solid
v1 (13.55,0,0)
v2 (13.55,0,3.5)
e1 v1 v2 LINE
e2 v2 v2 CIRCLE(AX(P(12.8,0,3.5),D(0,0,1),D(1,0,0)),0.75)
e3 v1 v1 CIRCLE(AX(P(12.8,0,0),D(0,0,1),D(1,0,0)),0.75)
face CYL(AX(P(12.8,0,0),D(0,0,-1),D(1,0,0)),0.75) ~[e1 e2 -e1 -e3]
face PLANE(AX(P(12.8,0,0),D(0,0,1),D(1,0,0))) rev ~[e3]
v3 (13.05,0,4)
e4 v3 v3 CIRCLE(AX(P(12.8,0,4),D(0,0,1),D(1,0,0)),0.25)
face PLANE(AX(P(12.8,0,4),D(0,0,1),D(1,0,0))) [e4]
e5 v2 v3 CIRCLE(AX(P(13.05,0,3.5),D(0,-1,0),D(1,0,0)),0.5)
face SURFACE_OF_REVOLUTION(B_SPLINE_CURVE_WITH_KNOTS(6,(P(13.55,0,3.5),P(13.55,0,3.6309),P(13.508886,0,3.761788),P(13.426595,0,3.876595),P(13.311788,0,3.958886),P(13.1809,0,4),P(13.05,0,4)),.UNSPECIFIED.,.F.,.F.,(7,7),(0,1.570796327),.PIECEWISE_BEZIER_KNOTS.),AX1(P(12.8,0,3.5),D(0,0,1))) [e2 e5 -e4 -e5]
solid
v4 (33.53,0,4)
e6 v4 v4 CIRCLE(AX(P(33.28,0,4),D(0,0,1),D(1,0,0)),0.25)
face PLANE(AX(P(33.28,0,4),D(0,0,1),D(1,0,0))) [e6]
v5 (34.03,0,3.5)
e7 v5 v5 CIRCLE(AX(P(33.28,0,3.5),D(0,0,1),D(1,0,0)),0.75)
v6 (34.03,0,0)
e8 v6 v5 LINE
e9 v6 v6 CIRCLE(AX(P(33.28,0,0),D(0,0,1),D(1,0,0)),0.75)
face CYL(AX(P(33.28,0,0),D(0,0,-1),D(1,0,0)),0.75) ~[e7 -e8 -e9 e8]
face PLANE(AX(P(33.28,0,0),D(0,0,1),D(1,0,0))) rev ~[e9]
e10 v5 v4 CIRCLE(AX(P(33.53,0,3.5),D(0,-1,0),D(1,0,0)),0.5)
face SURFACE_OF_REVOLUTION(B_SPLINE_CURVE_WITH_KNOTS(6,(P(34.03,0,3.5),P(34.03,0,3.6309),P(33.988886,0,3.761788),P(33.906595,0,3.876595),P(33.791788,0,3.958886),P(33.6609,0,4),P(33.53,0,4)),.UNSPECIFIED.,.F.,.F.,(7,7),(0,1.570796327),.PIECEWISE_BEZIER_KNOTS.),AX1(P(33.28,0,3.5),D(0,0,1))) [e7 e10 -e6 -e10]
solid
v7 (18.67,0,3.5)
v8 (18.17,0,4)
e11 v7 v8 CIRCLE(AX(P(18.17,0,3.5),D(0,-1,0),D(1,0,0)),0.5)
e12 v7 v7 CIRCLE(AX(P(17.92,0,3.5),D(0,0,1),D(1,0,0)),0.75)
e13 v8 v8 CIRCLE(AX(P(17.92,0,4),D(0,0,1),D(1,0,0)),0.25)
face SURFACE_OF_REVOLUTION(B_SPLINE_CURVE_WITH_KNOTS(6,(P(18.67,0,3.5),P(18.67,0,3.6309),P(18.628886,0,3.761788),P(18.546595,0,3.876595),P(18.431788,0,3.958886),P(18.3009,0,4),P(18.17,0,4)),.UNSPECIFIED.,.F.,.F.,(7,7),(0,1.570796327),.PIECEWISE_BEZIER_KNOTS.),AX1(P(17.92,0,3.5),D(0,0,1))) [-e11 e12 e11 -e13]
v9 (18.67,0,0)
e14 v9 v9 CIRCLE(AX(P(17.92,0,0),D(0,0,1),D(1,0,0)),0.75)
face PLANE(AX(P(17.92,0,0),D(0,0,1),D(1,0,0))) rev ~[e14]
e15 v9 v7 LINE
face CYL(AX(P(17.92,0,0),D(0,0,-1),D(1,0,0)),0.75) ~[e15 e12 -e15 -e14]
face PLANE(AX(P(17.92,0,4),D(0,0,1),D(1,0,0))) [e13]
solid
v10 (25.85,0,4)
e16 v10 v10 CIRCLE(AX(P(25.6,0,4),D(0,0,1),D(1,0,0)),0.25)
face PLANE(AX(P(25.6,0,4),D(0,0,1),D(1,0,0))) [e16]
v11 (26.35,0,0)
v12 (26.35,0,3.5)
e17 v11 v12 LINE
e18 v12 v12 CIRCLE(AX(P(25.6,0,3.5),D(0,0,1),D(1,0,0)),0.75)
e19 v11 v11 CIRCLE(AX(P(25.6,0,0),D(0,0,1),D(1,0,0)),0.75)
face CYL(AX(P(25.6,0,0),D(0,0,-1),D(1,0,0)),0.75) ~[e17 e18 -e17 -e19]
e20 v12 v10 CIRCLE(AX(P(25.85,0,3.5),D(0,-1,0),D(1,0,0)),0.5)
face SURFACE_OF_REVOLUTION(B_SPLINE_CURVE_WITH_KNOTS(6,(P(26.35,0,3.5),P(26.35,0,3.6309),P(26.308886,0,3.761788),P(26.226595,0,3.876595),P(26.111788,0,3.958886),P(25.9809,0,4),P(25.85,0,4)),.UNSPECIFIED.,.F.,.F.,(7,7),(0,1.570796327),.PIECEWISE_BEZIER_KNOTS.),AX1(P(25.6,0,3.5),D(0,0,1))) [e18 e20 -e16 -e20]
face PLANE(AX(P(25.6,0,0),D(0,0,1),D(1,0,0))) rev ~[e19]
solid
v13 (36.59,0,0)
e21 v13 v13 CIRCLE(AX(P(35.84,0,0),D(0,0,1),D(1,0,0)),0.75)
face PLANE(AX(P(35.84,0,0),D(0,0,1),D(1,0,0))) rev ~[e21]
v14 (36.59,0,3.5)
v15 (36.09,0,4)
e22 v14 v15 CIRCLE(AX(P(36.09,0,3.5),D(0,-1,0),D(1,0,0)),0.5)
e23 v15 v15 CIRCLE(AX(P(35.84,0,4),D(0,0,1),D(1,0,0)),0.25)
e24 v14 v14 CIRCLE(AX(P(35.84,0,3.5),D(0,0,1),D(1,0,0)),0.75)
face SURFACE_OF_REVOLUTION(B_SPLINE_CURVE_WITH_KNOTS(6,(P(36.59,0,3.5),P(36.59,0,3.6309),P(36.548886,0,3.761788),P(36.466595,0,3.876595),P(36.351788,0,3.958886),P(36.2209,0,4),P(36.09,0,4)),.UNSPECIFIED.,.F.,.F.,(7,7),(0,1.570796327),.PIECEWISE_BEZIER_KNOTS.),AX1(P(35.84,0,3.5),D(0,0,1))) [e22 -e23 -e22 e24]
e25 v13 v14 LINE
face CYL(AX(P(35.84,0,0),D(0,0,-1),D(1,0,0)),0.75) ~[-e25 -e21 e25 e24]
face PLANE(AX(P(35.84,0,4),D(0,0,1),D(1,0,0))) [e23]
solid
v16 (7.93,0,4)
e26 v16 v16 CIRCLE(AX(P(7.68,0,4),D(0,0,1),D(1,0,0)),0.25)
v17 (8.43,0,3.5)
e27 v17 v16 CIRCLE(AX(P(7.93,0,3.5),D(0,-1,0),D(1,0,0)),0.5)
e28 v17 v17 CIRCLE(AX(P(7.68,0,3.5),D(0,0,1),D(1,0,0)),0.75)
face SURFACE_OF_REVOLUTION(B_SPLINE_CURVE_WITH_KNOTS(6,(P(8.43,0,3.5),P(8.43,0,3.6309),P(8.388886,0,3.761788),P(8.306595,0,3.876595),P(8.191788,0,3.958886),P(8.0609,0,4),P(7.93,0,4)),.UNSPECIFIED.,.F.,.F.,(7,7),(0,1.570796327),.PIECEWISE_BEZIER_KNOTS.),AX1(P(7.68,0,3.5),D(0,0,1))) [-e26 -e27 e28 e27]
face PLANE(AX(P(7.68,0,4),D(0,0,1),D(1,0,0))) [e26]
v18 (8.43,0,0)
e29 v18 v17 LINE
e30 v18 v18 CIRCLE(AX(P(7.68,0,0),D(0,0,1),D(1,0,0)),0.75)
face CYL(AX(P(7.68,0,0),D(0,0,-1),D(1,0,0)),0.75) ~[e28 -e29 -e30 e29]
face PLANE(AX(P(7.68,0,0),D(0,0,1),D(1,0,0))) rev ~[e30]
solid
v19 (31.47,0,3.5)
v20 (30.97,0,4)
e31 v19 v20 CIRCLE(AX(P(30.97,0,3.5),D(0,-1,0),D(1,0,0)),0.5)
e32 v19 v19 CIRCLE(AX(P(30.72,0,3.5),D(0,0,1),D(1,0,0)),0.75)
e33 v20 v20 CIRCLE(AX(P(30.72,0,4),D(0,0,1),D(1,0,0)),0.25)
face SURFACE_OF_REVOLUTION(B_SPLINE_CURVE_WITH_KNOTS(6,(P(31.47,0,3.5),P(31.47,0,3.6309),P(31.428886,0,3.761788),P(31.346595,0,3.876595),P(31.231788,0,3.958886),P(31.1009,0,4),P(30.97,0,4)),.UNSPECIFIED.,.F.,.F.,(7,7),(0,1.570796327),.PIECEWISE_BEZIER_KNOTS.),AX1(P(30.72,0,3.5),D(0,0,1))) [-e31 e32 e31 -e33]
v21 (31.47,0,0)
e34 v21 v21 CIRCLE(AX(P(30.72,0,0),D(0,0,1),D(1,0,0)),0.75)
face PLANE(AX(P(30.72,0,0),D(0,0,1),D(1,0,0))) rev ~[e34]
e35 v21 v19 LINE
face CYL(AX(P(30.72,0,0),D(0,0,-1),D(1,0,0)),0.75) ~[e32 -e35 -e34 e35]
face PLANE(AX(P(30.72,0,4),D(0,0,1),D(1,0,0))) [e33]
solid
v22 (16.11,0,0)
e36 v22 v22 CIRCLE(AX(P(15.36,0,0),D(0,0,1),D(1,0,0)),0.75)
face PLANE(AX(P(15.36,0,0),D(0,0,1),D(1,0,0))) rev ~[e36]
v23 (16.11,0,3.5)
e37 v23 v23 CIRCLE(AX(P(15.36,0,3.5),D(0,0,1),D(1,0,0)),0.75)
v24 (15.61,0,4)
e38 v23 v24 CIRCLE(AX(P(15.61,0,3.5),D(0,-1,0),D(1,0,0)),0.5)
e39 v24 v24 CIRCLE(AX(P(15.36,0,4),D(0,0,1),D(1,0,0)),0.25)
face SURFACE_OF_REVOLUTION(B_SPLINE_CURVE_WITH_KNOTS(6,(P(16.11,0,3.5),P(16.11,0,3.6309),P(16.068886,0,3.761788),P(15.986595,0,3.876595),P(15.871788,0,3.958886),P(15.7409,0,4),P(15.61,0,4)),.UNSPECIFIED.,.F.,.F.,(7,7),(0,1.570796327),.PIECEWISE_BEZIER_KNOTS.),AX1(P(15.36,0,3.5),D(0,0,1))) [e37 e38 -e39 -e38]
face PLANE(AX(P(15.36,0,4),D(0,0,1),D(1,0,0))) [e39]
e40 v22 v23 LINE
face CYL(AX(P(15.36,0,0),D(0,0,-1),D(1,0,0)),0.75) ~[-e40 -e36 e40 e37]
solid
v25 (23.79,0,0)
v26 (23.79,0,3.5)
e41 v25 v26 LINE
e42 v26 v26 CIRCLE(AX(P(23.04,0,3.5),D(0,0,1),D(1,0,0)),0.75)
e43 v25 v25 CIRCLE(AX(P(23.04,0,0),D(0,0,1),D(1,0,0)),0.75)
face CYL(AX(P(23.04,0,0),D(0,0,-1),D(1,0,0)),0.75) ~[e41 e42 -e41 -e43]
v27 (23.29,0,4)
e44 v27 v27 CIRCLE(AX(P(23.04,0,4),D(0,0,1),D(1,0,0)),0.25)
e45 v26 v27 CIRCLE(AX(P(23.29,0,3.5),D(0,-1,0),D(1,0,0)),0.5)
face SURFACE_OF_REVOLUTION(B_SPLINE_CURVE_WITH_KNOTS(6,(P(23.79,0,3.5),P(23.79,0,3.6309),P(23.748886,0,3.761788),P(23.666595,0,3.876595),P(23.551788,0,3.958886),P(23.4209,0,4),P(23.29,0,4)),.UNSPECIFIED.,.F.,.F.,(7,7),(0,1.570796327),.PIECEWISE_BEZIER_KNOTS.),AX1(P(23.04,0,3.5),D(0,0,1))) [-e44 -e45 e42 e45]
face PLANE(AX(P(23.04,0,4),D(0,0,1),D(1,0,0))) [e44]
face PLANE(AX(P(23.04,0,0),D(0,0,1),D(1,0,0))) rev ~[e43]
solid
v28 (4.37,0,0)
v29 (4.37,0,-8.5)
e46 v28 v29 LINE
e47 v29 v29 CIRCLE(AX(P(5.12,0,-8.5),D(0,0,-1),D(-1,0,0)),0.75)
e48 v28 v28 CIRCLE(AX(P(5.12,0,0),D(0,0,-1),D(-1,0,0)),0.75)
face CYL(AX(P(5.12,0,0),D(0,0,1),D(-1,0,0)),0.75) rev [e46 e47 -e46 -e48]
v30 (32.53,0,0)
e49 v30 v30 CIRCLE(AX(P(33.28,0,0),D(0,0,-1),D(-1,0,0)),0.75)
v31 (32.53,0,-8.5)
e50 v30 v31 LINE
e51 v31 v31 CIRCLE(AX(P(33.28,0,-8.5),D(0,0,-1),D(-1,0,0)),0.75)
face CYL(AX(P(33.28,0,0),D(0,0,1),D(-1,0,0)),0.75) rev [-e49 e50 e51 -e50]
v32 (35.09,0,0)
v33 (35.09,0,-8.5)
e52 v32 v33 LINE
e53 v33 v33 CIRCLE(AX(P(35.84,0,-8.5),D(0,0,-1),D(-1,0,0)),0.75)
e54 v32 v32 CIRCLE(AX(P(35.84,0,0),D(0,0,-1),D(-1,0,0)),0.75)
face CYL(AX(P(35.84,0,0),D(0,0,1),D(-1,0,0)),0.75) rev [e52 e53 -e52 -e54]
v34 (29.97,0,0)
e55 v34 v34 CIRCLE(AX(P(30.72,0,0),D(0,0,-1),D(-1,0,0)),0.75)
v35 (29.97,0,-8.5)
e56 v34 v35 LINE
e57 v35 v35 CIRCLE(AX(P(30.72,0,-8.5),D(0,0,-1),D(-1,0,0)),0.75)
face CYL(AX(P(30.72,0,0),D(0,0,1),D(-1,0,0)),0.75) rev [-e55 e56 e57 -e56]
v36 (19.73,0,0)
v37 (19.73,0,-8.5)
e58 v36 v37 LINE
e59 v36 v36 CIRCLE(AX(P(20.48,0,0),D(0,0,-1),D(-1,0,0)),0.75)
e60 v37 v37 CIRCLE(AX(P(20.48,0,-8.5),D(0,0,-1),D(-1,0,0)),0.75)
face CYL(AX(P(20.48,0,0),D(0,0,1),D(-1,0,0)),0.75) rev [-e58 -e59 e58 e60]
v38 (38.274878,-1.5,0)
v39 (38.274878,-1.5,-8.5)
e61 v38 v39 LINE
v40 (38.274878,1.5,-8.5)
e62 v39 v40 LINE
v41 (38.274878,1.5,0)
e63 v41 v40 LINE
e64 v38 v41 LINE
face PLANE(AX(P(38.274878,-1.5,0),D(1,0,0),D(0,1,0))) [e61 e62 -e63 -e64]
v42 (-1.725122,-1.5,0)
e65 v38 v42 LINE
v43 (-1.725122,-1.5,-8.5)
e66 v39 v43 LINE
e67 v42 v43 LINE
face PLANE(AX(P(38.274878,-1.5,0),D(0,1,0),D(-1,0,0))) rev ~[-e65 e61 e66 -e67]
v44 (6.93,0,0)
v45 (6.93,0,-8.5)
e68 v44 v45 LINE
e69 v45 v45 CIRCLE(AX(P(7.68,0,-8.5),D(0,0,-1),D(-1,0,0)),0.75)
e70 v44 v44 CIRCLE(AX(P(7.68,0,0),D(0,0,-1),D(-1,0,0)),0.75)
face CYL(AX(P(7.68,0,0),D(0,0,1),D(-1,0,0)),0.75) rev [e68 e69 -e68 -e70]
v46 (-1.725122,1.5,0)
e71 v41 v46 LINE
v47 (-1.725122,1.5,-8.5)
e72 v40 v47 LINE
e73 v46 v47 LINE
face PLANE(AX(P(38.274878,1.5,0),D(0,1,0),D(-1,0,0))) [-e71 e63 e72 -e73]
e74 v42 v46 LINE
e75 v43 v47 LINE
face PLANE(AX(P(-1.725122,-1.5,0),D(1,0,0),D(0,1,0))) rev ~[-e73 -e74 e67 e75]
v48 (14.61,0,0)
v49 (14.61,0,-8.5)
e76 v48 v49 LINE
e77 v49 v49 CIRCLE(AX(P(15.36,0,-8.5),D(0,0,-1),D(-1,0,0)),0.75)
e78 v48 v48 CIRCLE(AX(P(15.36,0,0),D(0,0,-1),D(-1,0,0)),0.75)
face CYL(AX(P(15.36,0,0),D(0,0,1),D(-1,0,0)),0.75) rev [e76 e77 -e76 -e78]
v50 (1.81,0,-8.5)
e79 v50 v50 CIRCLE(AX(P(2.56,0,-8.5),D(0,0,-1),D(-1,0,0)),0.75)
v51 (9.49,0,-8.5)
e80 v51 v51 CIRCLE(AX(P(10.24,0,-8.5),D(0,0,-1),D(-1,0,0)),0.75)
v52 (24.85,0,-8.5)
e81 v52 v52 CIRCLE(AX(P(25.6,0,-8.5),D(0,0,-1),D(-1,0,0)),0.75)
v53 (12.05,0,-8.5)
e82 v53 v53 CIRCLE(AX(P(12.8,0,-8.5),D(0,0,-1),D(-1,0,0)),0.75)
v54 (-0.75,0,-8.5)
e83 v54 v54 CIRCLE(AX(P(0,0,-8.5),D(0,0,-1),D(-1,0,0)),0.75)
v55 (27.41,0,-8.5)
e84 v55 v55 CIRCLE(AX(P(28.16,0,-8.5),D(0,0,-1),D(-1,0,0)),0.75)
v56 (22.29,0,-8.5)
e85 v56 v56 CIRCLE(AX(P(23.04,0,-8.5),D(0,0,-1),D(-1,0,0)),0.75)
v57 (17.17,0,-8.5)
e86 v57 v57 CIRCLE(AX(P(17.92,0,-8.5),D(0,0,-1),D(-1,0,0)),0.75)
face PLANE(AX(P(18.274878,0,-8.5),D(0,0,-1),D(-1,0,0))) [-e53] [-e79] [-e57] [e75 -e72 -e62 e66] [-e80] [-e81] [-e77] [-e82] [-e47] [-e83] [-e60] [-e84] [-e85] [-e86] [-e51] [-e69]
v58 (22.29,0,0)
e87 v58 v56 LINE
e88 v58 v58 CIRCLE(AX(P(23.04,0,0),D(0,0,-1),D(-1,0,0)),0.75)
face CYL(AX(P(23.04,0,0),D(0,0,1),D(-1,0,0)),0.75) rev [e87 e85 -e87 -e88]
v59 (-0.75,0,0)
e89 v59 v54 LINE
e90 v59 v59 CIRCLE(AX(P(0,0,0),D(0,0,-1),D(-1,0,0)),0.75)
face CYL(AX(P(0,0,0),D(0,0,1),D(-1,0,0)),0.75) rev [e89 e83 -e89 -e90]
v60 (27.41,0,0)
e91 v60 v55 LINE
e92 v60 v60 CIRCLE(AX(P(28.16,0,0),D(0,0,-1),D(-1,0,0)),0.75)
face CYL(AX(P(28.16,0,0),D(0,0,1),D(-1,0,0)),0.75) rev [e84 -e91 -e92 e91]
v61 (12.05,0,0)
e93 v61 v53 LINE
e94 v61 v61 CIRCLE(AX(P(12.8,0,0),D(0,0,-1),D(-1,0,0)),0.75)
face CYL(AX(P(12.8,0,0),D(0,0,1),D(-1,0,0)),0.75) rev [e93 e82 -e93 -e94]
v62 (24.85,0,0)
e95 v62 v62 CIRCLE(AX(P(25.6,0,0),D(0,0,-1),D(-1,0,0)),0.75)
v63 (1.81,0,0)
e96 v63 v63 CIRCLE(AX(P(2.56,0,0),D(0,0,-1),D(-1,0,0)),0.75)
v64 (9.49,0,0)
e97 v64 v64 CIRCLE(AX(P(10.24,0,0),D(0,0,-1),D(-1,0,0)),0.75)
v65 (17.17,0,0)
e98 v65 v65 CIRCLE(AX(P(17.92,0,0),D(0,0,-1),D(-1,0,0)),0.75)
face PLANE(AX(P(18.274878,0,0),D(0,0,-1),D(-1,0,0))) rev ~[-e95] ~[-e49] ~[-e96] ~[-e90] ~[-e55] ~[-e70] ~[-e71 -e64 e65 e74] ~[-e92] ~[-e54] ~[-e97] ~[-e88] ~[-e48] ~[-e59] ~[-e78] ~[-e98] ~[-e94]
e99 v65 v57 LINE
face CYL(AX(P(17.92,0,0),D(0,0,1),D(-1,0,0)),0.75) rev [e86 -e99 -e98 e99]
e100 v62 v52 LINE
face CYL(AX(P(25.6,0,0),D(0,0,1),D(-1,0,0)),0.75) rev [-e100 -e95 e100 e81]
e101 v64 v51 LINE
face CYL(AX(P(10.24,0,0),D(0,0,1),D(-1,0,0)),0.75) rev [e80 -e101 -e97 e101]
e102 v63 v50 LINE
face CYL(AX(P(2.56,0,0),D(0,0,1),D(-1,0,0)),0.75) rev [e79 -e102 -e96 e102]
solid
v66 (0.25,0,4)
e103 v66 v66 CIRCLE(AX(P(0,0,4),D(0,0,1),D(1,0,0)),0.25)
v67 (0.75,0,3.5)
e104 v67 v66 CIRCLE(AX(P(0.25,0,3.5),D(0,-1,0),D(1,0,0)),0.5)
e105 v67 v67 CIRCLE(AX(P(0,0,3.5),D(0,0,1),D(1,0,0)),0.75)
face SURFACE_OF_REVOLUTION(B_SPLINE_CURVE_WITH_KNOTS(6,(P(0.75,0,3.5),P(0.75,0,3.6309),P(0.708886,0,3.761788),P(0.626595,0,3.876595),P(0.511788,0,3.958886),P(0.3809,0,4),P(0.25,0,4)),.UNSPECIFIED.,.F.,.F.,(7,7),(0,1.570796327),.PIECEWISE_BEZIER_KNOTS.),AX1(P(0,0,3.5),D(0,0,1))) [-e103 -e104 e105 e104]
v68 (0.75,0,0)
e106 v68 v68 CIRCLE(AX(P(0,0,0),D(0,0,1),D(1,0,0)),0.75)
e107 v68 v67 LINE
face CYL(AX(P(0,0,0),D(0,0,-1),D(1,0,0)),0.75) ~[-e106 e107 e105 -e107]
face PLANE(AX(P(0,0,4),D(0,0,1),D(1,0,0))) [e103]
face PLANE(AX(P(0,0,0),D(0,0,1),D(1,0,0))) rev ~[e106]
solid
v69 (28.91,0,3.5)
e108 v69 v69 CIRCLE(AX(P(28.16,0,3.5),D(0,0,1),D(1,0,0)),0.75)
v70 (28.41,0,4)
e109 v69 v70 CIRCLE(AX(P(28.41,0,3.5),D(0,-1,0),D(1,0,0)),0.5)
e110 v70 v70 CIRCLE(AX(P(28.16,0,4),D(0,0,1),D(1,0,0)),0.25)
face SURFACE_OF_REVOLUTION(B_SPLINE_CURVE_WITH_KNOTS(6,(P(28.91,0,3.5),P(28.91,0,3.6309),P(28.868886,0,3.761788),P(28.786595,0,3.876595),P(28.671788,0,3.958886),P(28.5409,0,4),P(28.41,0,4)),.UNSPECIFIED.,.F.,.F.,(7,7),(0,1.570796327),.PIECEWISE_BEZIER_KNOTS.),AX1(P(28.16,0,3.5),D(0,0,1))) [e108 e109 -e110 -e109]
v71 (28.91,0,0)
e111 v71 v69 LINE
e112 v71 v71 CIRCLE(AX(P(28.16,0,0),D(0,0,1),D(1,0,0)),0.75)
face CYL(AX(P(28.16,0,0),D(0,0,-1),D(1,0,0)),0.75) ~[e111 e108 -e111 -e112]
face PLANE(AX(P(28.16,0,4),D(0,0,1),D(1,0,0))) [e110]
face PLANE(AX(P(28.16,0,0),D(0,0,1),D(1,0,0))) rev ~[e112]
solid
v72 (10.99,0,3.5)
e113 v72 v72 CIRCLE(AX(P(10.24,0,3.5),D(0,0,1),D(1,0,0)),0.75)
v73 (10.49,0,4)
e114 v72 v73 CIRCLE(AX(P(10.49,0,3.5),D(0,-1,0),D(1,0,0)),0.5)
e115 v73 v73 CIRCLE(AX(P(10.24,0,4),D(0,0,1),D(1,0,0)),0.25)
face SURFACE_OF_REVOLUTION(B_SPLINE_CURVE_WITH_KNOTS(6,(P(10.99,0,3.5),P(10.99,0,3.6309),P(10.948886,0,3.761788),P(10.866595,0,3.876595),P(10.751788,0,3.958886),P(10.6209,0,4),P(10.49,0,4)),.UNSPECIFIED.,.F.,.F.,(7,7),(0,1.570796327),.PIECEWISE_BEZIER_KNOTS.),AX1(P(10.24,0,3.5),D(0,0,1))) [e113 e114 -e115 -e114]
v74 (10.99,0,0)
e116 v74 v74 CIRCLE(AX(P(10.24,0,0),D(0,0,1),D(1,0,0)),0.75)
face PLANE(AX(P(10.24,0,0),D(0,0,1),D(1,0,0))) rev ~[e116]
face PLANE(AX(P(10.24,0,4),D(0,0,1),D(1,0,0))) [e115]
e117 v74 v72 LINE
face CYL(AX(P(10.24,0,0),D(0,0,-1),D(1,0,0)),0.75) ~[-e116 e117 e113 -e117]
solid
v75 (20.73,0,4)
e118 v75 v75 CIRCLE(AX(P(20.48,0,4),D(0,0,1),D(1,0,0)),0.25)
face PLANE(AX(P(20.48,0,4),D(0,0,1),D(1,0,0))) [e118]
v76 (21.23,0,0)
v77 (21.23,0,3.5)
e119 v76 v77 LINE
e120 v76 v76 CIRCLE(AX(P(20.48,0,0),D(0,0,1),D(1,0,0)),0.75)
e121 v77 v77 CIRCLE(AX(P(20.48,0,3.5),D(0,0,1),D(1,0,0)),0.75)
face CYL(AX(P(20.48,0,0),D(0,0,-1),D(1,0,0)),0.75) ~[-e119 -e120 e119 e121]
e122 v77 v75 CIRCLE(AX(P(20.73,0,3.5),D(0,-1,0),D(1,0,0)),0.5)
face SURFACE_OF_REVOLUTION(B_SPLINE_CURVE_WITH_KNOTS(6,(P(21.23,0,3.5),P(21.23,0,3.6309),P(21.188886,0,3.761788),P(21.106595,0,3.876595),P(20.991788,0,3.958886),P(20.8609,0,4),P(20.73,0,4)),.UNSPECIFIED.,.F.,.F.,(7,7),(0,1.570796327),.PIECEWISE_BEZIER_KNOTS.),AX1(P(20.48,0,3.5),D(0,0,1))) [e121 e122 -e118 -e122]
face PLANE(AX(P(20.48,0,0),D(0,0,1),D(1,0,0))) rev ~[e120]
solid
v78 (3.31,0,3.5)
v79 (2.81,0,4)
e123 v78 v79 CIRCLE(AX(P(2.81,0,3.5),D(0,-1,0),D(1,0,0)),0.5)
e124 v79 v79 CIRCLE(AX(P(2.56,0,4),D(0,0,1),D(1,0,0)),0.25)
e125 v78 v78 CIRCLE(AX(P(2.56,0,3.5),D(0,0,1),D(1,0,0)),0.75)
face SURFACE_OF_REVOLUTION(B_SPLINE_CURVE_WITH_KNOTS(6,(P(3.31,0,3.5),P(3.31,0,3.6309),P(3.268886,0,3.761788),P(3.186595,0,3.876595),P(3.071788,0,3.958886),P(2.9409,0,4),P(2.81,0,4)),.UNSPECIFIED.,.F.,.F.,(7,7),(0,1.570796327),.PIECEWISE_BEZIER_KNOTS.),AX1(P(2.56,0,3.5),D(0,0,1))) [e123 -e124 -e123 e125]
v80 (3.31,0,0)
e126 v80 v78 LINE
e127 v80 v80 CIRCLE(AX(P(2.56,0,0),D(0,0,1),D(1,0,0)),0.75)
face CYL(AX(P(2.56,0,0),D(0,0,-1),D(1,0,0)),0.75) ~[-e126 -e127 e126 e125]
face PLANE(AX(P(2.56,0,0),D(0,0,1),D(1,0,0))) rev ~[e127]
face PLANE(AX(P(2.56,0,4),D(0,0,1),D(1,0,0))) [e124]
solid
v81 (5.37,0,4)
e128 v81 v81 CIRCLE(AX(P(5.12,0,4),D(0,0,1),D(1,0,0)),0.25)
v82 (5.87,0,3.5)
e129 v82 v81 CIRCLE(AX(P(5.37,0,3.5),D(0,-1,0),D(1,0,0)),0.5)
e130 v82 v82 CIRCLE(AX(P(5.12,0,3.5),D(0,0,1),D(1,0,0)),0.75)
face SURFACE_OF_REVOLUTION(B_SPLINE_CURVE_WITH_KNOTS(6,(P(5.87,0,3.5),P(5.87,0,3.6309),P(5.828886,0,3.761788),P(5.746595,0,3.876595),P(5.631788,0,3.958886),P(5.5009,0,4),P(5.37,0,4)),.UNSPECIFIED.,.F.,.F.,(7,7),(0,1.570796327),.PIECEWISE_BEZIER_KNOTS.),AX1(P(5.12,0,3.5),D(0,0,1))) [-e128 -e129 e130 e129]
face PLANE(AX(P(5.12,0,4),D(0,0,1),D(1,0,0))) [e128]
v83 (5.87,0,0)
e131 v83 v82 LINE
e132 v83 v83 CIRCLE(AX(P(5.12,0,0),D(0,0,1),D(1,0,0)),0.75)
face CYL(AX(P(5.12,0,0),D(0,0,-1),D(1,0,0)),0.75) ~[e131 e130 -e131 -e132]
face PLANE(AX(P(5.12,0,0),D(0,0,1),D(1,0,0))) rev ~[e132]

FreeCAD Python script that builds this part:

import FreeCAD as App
import Part
import Sketcher

V = App.Vector
Q = App.Units.Quantity


def edges_at(feature, points):
    """Names of the edges that pass closest to the given points."""
    edges = feature.Shape.Edges
    near = lambda p: min(range(len(edges)), key=lambda i: edges[i].distToShape(Part.Vertex(*p))[0])
    return sorted({f"Edge{near(p) + 1}" for p in points})

doc = App.newDocument("Part")
params = doc.addObject("Spreadsheet::Sheet", "Params")
for row, (alias, value) in enumerate([
    ("sketch1_diameter", "1.5 mm"),
    ("pad1_length", "4 mm"),
    ("fillet_radius", "0.5 mm"),
    ("sketch2_diameter", "1.5 mm"),
    ("pad2_length", "4 mm"),
    ("fillet2_radius", "0.5 mm"),
    ("sketch3_diameter", "1.5 mm"),
    ("pad3_length", "4 mm"),
    ("fillet3_radius", "0.5 mm"),
    ("sketch4_diameter", "1.5 mm"),
    ("pad4_length", "4 mm"),
    ("fillet4_radius", "0.5 mm"),
    ("sketch5_diameter", "1.5 mm"),
    ("pad5_length", "4 mm"),
    ("fillet5_radius", "0.5 mm"),
    ("sketch6_diameter", "1.5 mm"),
    ("pad6_length", "4 mm"),
    ("fillet6_radius", "0.5 mm"),
    ("sketch7_diameter", "1.5 mm"),
    ("pad7_length", "4 mm"),
    ("fillet7_radius", "0.5 mm"),
    ("sketch8_diameter", "1.5 mm"),
    ("pad8_length", "4 mm"),
    ("fillet8_radius", "0.5 mm"),
    ("sketch9_diameter", "1.5 mm"),
    ("pad9_length", "4 mm"),
    ("fillet9_radius", "0.5 mm"),
    ("sketch10_diameter", "1.5 mm"),
    ("pad10_length", "4 mm"),
    ("fillet10_radius", "0.5 mm"),
    ("sketch11_diameter", "1.5 mm"),
    ("pad11_length", "4 mm"),
    ("fillet11_radius", "0.5 mm"),
    ("sketch12_diameter", "1.5 mm"),
    ("pad12_length", "4 mm"),
    ("fillet12_radius", "0.5 mm"),
    ("sketch13_diameter", "1.5 mm"),
    ("pad13_length", "4 mm"),
    ("fillet13_radius", "0.5 mm"),
    ("sketch14_diameter", "1.5 mm"),
    ("pad14_length", "4 mm"),
    ("fillet14_radius", "0.5 mm"),
    ("sketch15_diameter", "1.5 mm"),
    ("pad15_length", "4 mm"),
    ("fillet15_radius", "0.5 mm"),
    ("sketch16_diameter", "1.5 mm"),
    ("sketch16_width", "40 mm"),
    ("sketch16_height", "3 mm"),
    ("pad16_length", "8.5 mm"),
], start=1):
    params.set(f"A{row}", alias)
    params.set(f"B{row}", "=" + value)
    params.setAlias(f"B{row}", alias)

body = doc.addObject("PartDesign::Body", "Body")

# Sketch on XY plane
sketch1 = doc.addObject("Sketcher::SketchObject", "Sketch")
body.addObject(sketch1)
sketch1.AttachmentSupport = (doc.XY_Plane, [""])
sketch1.MapMode = "FlatFace"
sketch1.addGeometry(Part.Circle(V(0, 0, 0), V(0, 0, 1), 0.8), False)
sketch1.addConstraint([
    Sketcher.Constraint("Coincident", 0, 3, -1, 1),
    Sketcher.Constraint("Diameter", 0, Q("1.5 mm")),
])
sketch1.setExpression("Constraints[1]", "Params.sketch1_diameter")
pad1 = doc.addObject("PartDesign::Pad", "Pad")
body.addObject(pad1)
pad1.Profile = sketch1
pad1.setExpression("Length", "Params.pad1_length")
doc.recompute()

fillet = doc.addObject("PartDesign::Fillet", "Fillet")
body.addObject(fillet)
fillet.Base = (pad1, edges_at(pad1, [(-0.75, 0, 4)]))
fillet.setExpression("Radius", "Params.fillet_radius")
body2 = doc.addObject("PartDesign::Body", "Body001")

# Sketch on XY plane
sketch2 = doc.addObject("Sketcher::SketchObject", "Sketch001")
body2.addObject(sketch2)
sketch2.AttachmentSupport = (doc.getObject("XY_Plane001"), [""])
sketch2.MapMode = "FlatFace"
sketch2.addGeometry(Part.Circle(V(2.6, 0, 0), V(0, 0, 1), 0.8), False)
sketch2.addConstraint([
    Sketcher.Constraint("PointOnObject", 0, 3, -1),
    Sketcher.Constraint("Diameter", 0, Q("1.5 mm")),
    Sketcher.Constraint("DistanceX", -1, 1, 0, 3, Q("2.56 mm")),
])
sketch2.setExpression("Constraints[1]", "Params.sketch2_diameter")
pad2 = doc.addObject("PartDesign::Pad", "Pad001")
body2.addObject(pad2)
pad2.Profile = sketch2
pad2.setExpression("Length", "Params.pad2_length")
doc.recompute()

fillet2 = doc.addObject("PartDesign::Fillet", "Fillet001")
body2.addObject(fillet2)
fillet2.Base = (pad2, edges_at(pad2, [(1.81, 0, 4)]))
fillet2.setExpression("Radius", "Params.fillet2_radius")
body3 = doc.addObject("PartDesign::Body", "Body002")

# Sketch on XY plane
sketch3 = doc.addObject("Sketcher::SketchObject", "Sketch002")
body3.addObject(sketch3)
sketch3.AttachmentSupport = (doc.getObject("XY_Plane002"), [""])
sketch3.MapMode = "FlatFace"
sketch3.addGeometry(Part.Circle(V(5.1, 0, 0), V(0, 0, 1), 0.8), False)
sketch3.addConstraint([
    Sketcher.Constraint("PointOnObject", 0, 3, -1),
    Sketcher.Constraint("Diameter", 0, Q("1.5 mm")),
    Sketcher.Constraint("DistanceX", -1, 1, 0, 3, Q("5.12 mm")),
])
sketch3.setExpression("Constraints[1]", "Params.sketch3_diameter")
pad3 = doc.addObject("PartDesign::Pad", "Pad002")
body3.addObject(pad3)
pad3.Profile = sketch3
pad3.setExpression("Length", "Params.pad3_length")
doc.recompute()

fillet3 = doc.addObject("PartDesign::Fillet", "Fillet002")
body3.addObject(fillet3)
fillet3.Base = (pad3, edges_at(pad3, [(4.37, 0, 4)]))
fillet3.setExpression("Radius", "Params.fillet3_radius")
body4 = doc.addObject("PartDesign::Body", "Body003")

# Sketch on XY plane
sketch4 = doc.addObject("Sketcher::SketchObject", "Sketch003")
body4.addObject(sketch4)
sketch4.AttachmentSupport = (doc.getObject("XY_Plane003"), [""])
sketch4.MapMode = "FlatFace"
sketch4.addGeometry(Part.Circle(V(7.7, 0, 0), V(0, 0, 1), 0.8), False)
sketch4.addConstraint([
    Sketcher.Constraint("PointOnObject", 0, 3, -1),
    Sketcher.Constraint("Diameter", 0, Q("1.5 mm")),
    Sketcher.Constraint("DistanceX", -1, 1, 0, 3, Q("7.68 mm")),
])
sketch4.setExpression("Constraints[1]", "Params.sketch4_diameter")
pad4 = doc.addObject("PartDesign::Pad", "Pad003")
body4.addObject(pad4)
pad4.Profile = sketch4
pad4.setExpression("Length", "Params.pad4_length")
doc.recompute()

fillet4 = doc.addObject("PartDesign::Fillet", "Fillet003")
body4.addObject(fillet4)
fillet4.Base = (pad4, edges_at(pad4, [(6.93, 0, 4)]))
fillet4.setExpression("Radius", "Params.fillet4_radius")
body5 = doc.addObject("PartDesign::Body", "Body004")

# Sketch on XY plane
sketch5 = doc.addObject("Sketcher::SketchObject", "Sketch004")
body5.addObject(sketch5)
sketch5.AttachmentSupport = (doc.getObject("XY_Plane004"), [""])
sketch5.MapMode = "FlatFace"
sketch5.addGeometry(Part.Circle(V(10.2, 0, 0), V(0, 0, 1), 0.8), False)
sketch5.addConstraint([
    Sketcher.Constraint("PointOnObject", 0, 3, -1),
    Sketcher.Constraint("Diameter", 0, Q("1.5 mm")),
    Sketcher.Constraint("DistanceX", -1, 1, 0, 3, Q("10.24 mm")),
])
sketch5.setExpression("Constraints[1]", "Params.sketch5_diameter")
pad5 = doc.addObject("PartDesign::Pad", "Pad004")
body5.addObject(pad5)
pad5.Profile = sketch5
pad5.setExpression("Length", "Params.pad5_length")
doc.recompute()

fillet5 = doc.addObject("PartDesign::Fillet", "Fillet004")
body5.addObject(fillet5)
fillet5.Base = (pad5, edges_at(pad5, [(9.49, 0, 4)]))
fillet5.setExpression("Radius", "Params.fillet5_radius")
body6 = doc.addObject("PartDesign::Body", "Body005")

# Sketch on XY plane
sketch6 = doc.addObject("Sketcher::SketchObject", "Sketch005")
body6.addObject(sketch6)
sketch6.AttachmentSupport = (doc.getObject("XY_Plane005"), [""])
sketch6.MapMode = "FlatFace"
sketch6.addGeometry(Part.Circle(V(12.8, 0, 0), V(0, 0, 1), 0.8), False)
sketch6.addConstraint([
    Sketcher.Constraint("PointOnObject", 0, 3, -1),
    Sketcher.Constraint("Diameter", 0, Q("1.5 mm")),
    Sketcher.Constraint("DistanceX", -1, 1, 0, 3, Q("12.8 mm")),
])
sketch6.setExpression("Constraints[1]", "Params.sketch6_diameter")
pad6 = doc.addObject("PartDesign::Pad", "Pad005")
body6.addObject(pad6)
pad6.Profile = sketch6
pad6.setExpression("Length", "Params.pad6_length")
doc.recompute()

fillet6 = doc.addObject("PartDesign::Fillet", "Fillet005")
body6.addObject(fillet6)
fillet6.Base = (pad6, edges_at(pad6, [(12.05, 0, 4)]))
fillet6.setExpression("Radius", "Params.fillet6_radius")
body7 = doc.addObject("PartDesign::Body", "Body006")

# Sketch on XY plane
sketch7 = doc.addObject("Sketcher::SketchObject", "Sketch006")
body7.addObject(sketch7)
sketch7.AttachmentSupport = (doc.getObject("XY_Plane006"), [""])
sketch7.MapMode = "FlatFace"
sketch7.addGeometry(Part.Circle(V(15.4, 0, 0), V(0, 0, 1), 0.8), False)
sketch7.addConstraint([
    Sketcher.Constraint("PointOnObject", 0, 3, -1),
    Sketcher.Constraint("Diameter", 0, Q("1.5 mm")),
    Sketcher.Constraint("DistanceX", -1, 1, 0, 3, Q("15.36 mm")),
])
sketch7.setExpression("Constraints[1]", "Params.sketch7_diameter")
pad7 = doc.addObject("PartDesign::Pad", "Pad006")
body7.addObject(pad7)
pad7.Profile = sketch7
pad7.setExpression("Length", "Params.pad7_length")
doc.recompute()

fillet7 = doc.addObject("PartDesign::Fillet", "Fillet006")
body7.addObject(fillet7)
fillet7.Base = (pad7, edges_at(pad7, [(14.61, 0, 4)]))
fillet7.setExpression("Radius", "Params.fillet7_radius")
body8 = doc.addObject("PartDesign::Body", "Body007")

# Sketch on XY plane
sketch8 = doc.addObject("Sketcher::SketchObject", "Sketch007")
body8.addObject(sketch8)
sketch8.AttachmentSupport = (doc.getObject("XY_Plane007"), [""])
sketch8.MapMode = "FlatFace"
sketch8.addGeometry(Part.Circle(V(17.9, 0, 0), V(0, 0, 1), 0.8), False)
sketch8.addConstraint([
    Sketcher.Constraint("PointOnObject", 0, 3, -1),
    Sketcher.Constraint("Diameter", 0, Q("1.5 mm")),
    Sketcher.Constraint("DistanceX", -1, 1, 0, 3, Q("17.92 mm")),
])
sketch8.setExpression("Constraints[1]", "Params.sketch8_diameter")
pad8 = doc.addObject("PartDesign::Pad", "Pad007")
body8.addObject(pad8)
pad8.Profile = sketch8
pad8.setExpression("Length", "Params.pad8_length")
doc.recompute()

fillet8 = doc.addObject("PartDesign::Fillet", "Fillet007")
body8.addObject(fillet8)
fillet8.Base = (pad8, edges_at(pad8, [(17.17, 0, 4)]))
fillet8.setExpression("Radius", "Params.fillet8_radius")
body9 = doc.addObject("PartDesign::Body", "Body008")

# Sketch on XY plane
sketch9 = doc.addObject("Sketcher::SketchObject", "Sketch008")
body9.addObject(sketch9)
sketch9.AttachmentSupport = (doc.getObject("XY_Plane008"), [""])
sketch9.MapMode = "FlatFace"
sketch9.addGeometry(Part.Circle(V(20.5, 0, 0), V(0, 0, 1), 0.8), False)
sketch9.addConstraint([
    Sketcher.Constraint("PointOnObject", 0, 3, -1),
    Sketcher.Constraint("Diameter", 0, Q("1.5 mm")),
    Sketcher.Constraint("DistanceX", -1, 1, 0, 3, Q("20.48 mm")),
])
sketch9.setExpression("Constraints[1]", "Params.sketch9_diameter")
pad9 = doc.addObject("PartDesign::Pad", "Pad008")
body9.addObject(pad9)
pad9.Profile = sketch9
pad9.setExpression("Length", "Params.pad9_length")
doc.recompute()

fillet9 = doc.addObject("PartDesign::Fillet", "Fillet008")
body9.addObject(fillet9)
fillet9.Base = (pad9, edges_at(pad9, [(19.73, 0, 4)]))
fillet9.setExpression("Radius", "Params.fillet9_radius")
body10 = doc.addObject("PartDesign::Body", "Body009")

# Sketch on XY plane
sketch10 = doc.addObject("Sketcher::SketchObject", "Sketch009")
body10.addObject(sketch10)
sketch10.AttachmentSupport = (doc.getObject("XY_Plane009"), [""])
sketch10.MapMode = "FlatFace"
sketch10.addGeometry(Part.Circle(V(23, 0, 0), V(0, 0, 1), 0.8), False)
sketch10.addConstraint([
    Sketcher.Constraint("PointOnObject", 0, 3, -1),
    Sketcher.Constraint("Diameter", 0, Q("1.5 mm")),
    Sketcher.Constraint("DistanceX", -1, 1, 0, 3, Q("23.04 mm")),
])
sketch10.setExpression("Constraints[1]", "Params.sketch10_diameter")
pad10 = doc.addObject("PartDesign::Pad", "Pad009")
body10.addObject(pad10)
pad10.Profile = sketch10
pad10.setExpression("Length", "Params.pad10_length")
doc.recompute()

fillet10 = doc.addObject("PartDesign::Fillet", "Fillet009")
body10.addObject(fillet10)
fillet10.Base = (pad10, edges_at(pad10, [(22.29, 0, 4)]))
fillet10.setExpression("Radius", "Params.fillet10_radius")
body11 = doc.addObject("PartDesign::Body", "Body010")

# Sketch on XY plane
sketch11 = doc.addObject("Sketcher::SketchObject", "Sketch010")
body11.addObject(sketch11)
sketch11.AttachmentSupport = (doc.getObject("XY_Plane010"), [""])
sketch11.MapMode = "FlatFace"
sketch11.addGeometry(Part.Circle(V(25.6, 0, 0), V(0, 0, 1), 0.8), False)
sketch11.addConstraint([
    Sketcher.Constraint("PointOnObject", 0, 3, -1),
    Sketcher.Constraint("Diameter", 0, Q("1.5 mm")),
    Sketcher.Constraint("DistanceX", -1, 1, 0, 3, Q("25.6 mm")),
])
sketch11.setExpression("Constraints[1]", "Params.sketch11_diameter")
pad11 = doc.addObject("PartDesign::Pad", "Pad010")
body11.addObject(pad11)
pad11.Profile = sketch11
pad11.setExpression("Length", "Params.pad11_length")
doc.recompute()

fillet11 = doc.addObject("PartDesign::Fillet", "Fillet010")
body11.addObject(fillet11)
fillet11.Base = (pad11, edges_at(pad11, [(24.85, 0, 4)]))
fillet11.setExpression("Radius", "Params.fillet11_radius")
body12 = doc.addObject("PartDesign::Body", "Body011")

# Sketch on XY plane
sketch12 = doc.addObject("Sketcher::SketchObject", "Sketch011")
body12.addObject(sketch12)
sketch12.AttachmentSupport = (doc.getObject("XY_Plane011"), [""])
sketch12.MapMode = "FlatFace"
sketch12.addGeometry(Part.Circle(V(28.2, 0, 0), V(0, 0, 1), 0.8), False)
sketch12.addConstraint([
    Sketcher.Constraint("PointOnObject", 0, 3, -1),
    Sketcher.Constraint("Diameter", 0, Q("1.5 mm")),
    Sketcher.Constraint("DistanceX", -1, 1, 0, 3, Q("28.16 mm")),
])
sketch12.setExpression("Constraints[1]", "Params.sketch12_diameter")
pad12 = doc.addObject("PartDesign::Pad", "Pad011")
body12.addObject(pad12)
pad12.Profile = sketch12
pad12.setExpression("Length", "Params.pad12_length")
doc.recompute()

fillet12 = doc.addObject("PartDesign::Fillet", "Fillet011")
body12.addObject(fillet12)
fillet12.Base = (pad12, edges_at(pad12, [(27.41, 0, 4)]))
fillet12.setExpression("Radius", "Params.fillet12_radius")
body13 = doc.addObject("PartDesign::Body", "Body012")

# Sketch on XY plane
sketch13 = doc.addObject("Sketcher::SketchObject", "Sketch012")
body13.addObject(sketch13)
sketch13.AttachmentSupport = (doc.getObject("XY_Plane012"), [""])
sketch13.MapMode = "FlatFace"
sketch13.addGeometry(Part.Circle(V(30.7, 0, 0), V(0, 0, 1), 0.8), False)
sketch13.addConstraint([
    Sketcher.Constraint("PointOnObject", 0, 3, -1),
    Sketcher.Constraint("Diameter", 0, Q("1.5 mm")),
    Sketcher.Constraint("DistanceX", -1, 1, 0, 3, Q("30.72 mm")),
])
sketch13.setExpression("Constraints[1]", "Params.sketch13_diameter")
pad13 = doc.addObject("PartDesign::Pad", "Pad012")
body13.addObject(pad13)
pad13.Profile = sketch13
pad13.setExpression("Length", "Params.pad13_length")
doc.recompute()

fillet13 = doc.addObject("PartDesign::Fillet", "Fillet012")
body13.addObject(fillet13)
fillet13.Base = (pad13, edges_at(pad13, [(29.97, 0, 4)]))
fillet13.setExpression("Radius", "Params.fillet13_radius")
body14 = doc.addObject("PartDesign::Body", "Body013")

# Sketch on XY plane
sketch14 = doc.addObject("Sketcher::SketchObject", "Sketch013")
body14.addObject(sketch14)
sketch14.AttachmentSupport = (doc.getObject("XY_Plane013"), [""])
sketch14.MapMode = "FlatFace"
sketch14.addGeometry(Part.Circle(V(33.3, 0, 0), V(0, 0, 1), 0.8), False)
sketch14.addConstraint([
    Sketcher.Constraint("PointOnObject", 0, 3, -1),
    Sketcher.Constraint("Diameter", 0, Q("1.5 mm")),
    Sketcher.Constraint("DistanceX", -1, 1, 0, 3, Q("33.28 mm")),
])
sketch14.setExpression("Constraints[1]", "Params.sketch14_diameter")
pad14 = doc.addObject("PartDesign::Pad", "Pad013")
body14.addObject(pad14)
pad14.Profile = sketch14
pad14.setExpression("Length", "Params.pad14_length")
doc.recompute()

fillet14 = doc.addObject("PartDesign::Fillet", "Fillet013")
body14.addObject(fillet14)
fillet14.Base = (pad14, edges_at(pad14, [(32.53, 0, 4)]))
fillet14.setExpression("Radius", "Params.fillet14_radius")
body15 = doc.addObject("PartDesign::Body", "Body014")

# Sketch on XY plane
sketch15 = doc.addObject("Sketcher::SketchObject", "Sketch014")
body15.addObject(sketch15)
sketch15.AttachmentSupport = (doc.getObject("XY_Plane014"), [""])
sketch15.MapMode = "FlatFace"
sketch15.addGeometry(Part.Circle(V(35.8, 0, 0), V(0, 0, 1), 0.8), False)
sketch15.addConstraint([
    Sketcher.Constraint("PointOnObject", 0, 3, -1),
    Sketcher.Constraint("Diameter", 0, Q("1.5 mm")),
    Sketcher.Constraint("DistanceX", -1, 1, 0, 3, Q("35.84 mm")),
])
sketch15.setExpression("Constraints[1]", "Params.sketch15_diameter")
pad15 = doc.addObject("PartDesign::Pad", "Pad014")
body15.addObject(pad15)
pad15.Profile = sketch15
pad15.setExpression("Length", "Params.pad15_length")
doc.recompute()

fillet15 = doc.addObject("PartDesign::Fillet", "Fillet014")
body15.addObject(fillet15)
fillet15.Base = (pad15, edges_at(pad15, [(35.09, 0, 4)]))
fillet15.setExpression("Radius", "Params.fillet15_radius")
body16 = doc.addObject("PartDesign::Body", "Body015")

# Sketch on XY plane
sketch16 = doc.addObject("Sketcher::SketchObject", "Sketch015")
body16.addObject(sketch16)
sketch16.AttachmentSupport = (doc.getObject("XY_Plane015"), [""])
sketch16.MapMode = "FlatFace"
sketch16.addGeometry([
    Part.LineSegment(V(38.3, 1.5, 0), V(38.3, -1.5, 0)),  # 0
    Part.LineSegment(V(38.3, -1.5, 0), V(-1.7, -1.5, 0)),  # 1
    Part.LineSegment(V(-1.7, -1.5, 0), V(-1.7, 1.5, 0)),  # 2
    Part.LineSegment(V(-1.7, 1.5, 0), V(38.3, 1.5, 0)),  # 3
    Part.Circle(V(35.8, 0, 0), V(0, 0, 1), 0.8),  # 4
    Part.Circle(V(33.3, 0, 0), V(0, 0, 1), 0.8),  # 5
    Part.Circle(V(30.7, 0, 0), V(0, 0, 1), 0.8),  # 6
    Part.Circle(V(28.2, 0, 0), V(0, 0, 1), 0.8),  # 7
    Part.Circle(V(25.6, 0, 0), V(0, 0, 1), 0.8),  # 8
    Part.Circle(V(23, 0, 0), V(0, 0, 1), 0.8),  # 9
    Part.Circle(V(20.5, 0, 0), V(0, 0, 1), 0.8),  # 10
    Part.Circle(V(17.9, 0, 0), V(0, 0, 1), 0.8),  # 11
    Part.Circle(V(15.4, 0, 0), V(0, 0, 1), 0.8),  # 12
    Part.Circle(V(12.8, 0, 0), V(0, 0, 1), 0.8),  # 13
    Part.Circle(V(10.2, 0, 0), V(0, 0, 1), 0.8),  # 14
    Part.Circle(V(7.7, 0, 0), V(0, 0, 1), 0.8),  # 15
    Part.Circle(V(5.1, 0, 0), V(0, 0, 1), 0.8),  # 16
    Part.Circle(V(2.6, 0, 0), V(0, 0, 1), 0.8),  # 17
    Part.Circle(V(0, 0, 0), V(0, 0, 1), 0.8),  # 18
], False)
sketch16.addConstraint([
    Sketcher.Constraint("Coincident", 0, 2, 1, 1),
    Sketcher.Constraint("Coincident", 1, 2, 2, 1),
    Sketcher.Constraint("Coincident", 2, 2, 3, 1),
    Sketcher.Constraint("Coincident", 3, 2, 0, 1),
    Sketcher.Constraint("Vertical", 0),
    Sketcher.Constraint("Horizontal", 1),
    Sketcher.Constraint("Vertical", 2),
    Sketcher.Constraint("Horizontal", 3),
    Sketcher.Constraint("Coincident", 18, 3, -1, 1),
    Sketcher.Constraint("Equal", 4, 5),
    Sketcher.Constraint("Equal", 5, 6),
    Sketcher.Constraint("Equal", 6, 7),
    Sketcher.Constraint("Equal", 7, 8),
    Sketcher.Constraint("Equal", 8, 9),
    Sketcher.Constraint("Equal", 9, 10),
    Sketcher.Constraint("Equal", 10, 11),
    Sketcher.Constraint("Equal", 11, 12),
    Sketcher.Constraint("Equal", 12, 13),
    Sketcher.Constraint("Equal", 13, 14),
    Sketcher.Constraint("Equal", 14, 15),
    Sketcher.Constraint("Equal", 15, 16),
    Sketcher.Constraint("Equal", 16, 17),
    Sketcher.Constraint("Equal", 17, 18),
    Sketcher.Constraint("PointOnObject", 4, 3, -1),
    Sketcher.Constraint("PointOnObject", 5, 3, -1),
    Sketcher.Constraint("PointOnObject", 6, 3, -1),
    Sketcher.Constraint("PointOnObject", 7, 3, -1),
    Sketcher.Constraint("PointOnObject", 8, 3, -1),
    Sketcher.Constraint("PointOnObject", 9, 3, -1),
    Sketcher.Constraint("PointOnObject", 10, 3, -1),
    Sketcher.Constraint("PointOnObject", 11, 3, -1),
    Sketcher.Constraint("PointOnObject", 12, 3, -1),
    Sketcher.Constraint("PointOnObject", 13, 3, -1),
    Sketcher.Constraint("PointOnObject", 14, 3, -1),
    Sketcher.Constraint("PointOnObject", 15, 3, -1),
    Sketcher.Constraint("PointOnObject", 16, 3, -1),
    Sketcher.Constraint("PointOnObject", 17, 3, -1),
    Sketcher.Constraint("Diameter", 4, Q("1.5 mm")),
    Sketcher.Constraint("DistanceX", 1, 2, 1, 1, Q("40 mm")),
    Sketcher.Constraint("DistanceY", 0, 2, 0, 1, Q("3 mm")),
    Sketcher.Constraint("DistanceX", -1, 1, 8, 3, Q("25.6 mm")),
    Sketcher.Constraint("DistanceX", -1, 1, 13, 3, Q("12.8 mm")),
    Sketcher.Constraint("DistanceY", 0, 2, -1, 1, Q("1.5 mm")),
    Sketcher.Constraint("DistanceX", 9, 3, 4, 3, Q("12.8 mm")),
    Sketcher.Constraint("DistanceX", 10, 3, 5, 3, Q("12.8 mm")),
    Sketcher.Constraint("DistanceX", 11, 3, 6, 3, Q("12.8 mm")),
    Sketcher.Constraint("DistanceX", 12, 3, 7, 3, Q("12.8 mm")),
    Sketcher.Constraint("DistanceX", 14, 3, 9, 3, Q("12.8 mm")),
    Sketcher.Constraint("DistanceX", 15, 3, 10, 3, Q("12.8 mm")),
    Sketcher.Constraint("DistanceX", 16, 3, 11, 3, Q("12.8 mm")),
    Sketcher.Constraint("DistanceX", 17, 3, 12, 3, Q("12.8 mm")),
    Sketcher.Constraint("DistanceX", -1, 1, 4, 3, Q("35.84 mm")),
    Sketcher.Constraint("DistanceX", -1, 1, 5, 3, Q("33.28 mm")),
    Sketcher.Constraint("DistanceX", -1, 1, 6, 3, Q("30.72 mm")),
    Sketcher.Constraint("DistanceX", -1, 1, 7, 3, Q("28.16 mm")),
    Sketcher.Constraint("DistanceX", -1, 1, 0, 2, Q("38.274878 mm")),
])
sketch16.setExpression("Constraints[37]", "Params.sketch16_diameter")
sketch16.setExpression("Constraints[38]", "Params.sketch16_width")
sketch16.setExpression("Constraints[39]", "Params.sketch16_height")
pad16 = doc.addObject("PartDesign::Pad", "Pad015")
body16.addObject(pad16)
pad16.Profile = sketch16
pad16.setExpression("Length", "Params.pad16_length")
pad16.Reversed = True

doc.recompute()
